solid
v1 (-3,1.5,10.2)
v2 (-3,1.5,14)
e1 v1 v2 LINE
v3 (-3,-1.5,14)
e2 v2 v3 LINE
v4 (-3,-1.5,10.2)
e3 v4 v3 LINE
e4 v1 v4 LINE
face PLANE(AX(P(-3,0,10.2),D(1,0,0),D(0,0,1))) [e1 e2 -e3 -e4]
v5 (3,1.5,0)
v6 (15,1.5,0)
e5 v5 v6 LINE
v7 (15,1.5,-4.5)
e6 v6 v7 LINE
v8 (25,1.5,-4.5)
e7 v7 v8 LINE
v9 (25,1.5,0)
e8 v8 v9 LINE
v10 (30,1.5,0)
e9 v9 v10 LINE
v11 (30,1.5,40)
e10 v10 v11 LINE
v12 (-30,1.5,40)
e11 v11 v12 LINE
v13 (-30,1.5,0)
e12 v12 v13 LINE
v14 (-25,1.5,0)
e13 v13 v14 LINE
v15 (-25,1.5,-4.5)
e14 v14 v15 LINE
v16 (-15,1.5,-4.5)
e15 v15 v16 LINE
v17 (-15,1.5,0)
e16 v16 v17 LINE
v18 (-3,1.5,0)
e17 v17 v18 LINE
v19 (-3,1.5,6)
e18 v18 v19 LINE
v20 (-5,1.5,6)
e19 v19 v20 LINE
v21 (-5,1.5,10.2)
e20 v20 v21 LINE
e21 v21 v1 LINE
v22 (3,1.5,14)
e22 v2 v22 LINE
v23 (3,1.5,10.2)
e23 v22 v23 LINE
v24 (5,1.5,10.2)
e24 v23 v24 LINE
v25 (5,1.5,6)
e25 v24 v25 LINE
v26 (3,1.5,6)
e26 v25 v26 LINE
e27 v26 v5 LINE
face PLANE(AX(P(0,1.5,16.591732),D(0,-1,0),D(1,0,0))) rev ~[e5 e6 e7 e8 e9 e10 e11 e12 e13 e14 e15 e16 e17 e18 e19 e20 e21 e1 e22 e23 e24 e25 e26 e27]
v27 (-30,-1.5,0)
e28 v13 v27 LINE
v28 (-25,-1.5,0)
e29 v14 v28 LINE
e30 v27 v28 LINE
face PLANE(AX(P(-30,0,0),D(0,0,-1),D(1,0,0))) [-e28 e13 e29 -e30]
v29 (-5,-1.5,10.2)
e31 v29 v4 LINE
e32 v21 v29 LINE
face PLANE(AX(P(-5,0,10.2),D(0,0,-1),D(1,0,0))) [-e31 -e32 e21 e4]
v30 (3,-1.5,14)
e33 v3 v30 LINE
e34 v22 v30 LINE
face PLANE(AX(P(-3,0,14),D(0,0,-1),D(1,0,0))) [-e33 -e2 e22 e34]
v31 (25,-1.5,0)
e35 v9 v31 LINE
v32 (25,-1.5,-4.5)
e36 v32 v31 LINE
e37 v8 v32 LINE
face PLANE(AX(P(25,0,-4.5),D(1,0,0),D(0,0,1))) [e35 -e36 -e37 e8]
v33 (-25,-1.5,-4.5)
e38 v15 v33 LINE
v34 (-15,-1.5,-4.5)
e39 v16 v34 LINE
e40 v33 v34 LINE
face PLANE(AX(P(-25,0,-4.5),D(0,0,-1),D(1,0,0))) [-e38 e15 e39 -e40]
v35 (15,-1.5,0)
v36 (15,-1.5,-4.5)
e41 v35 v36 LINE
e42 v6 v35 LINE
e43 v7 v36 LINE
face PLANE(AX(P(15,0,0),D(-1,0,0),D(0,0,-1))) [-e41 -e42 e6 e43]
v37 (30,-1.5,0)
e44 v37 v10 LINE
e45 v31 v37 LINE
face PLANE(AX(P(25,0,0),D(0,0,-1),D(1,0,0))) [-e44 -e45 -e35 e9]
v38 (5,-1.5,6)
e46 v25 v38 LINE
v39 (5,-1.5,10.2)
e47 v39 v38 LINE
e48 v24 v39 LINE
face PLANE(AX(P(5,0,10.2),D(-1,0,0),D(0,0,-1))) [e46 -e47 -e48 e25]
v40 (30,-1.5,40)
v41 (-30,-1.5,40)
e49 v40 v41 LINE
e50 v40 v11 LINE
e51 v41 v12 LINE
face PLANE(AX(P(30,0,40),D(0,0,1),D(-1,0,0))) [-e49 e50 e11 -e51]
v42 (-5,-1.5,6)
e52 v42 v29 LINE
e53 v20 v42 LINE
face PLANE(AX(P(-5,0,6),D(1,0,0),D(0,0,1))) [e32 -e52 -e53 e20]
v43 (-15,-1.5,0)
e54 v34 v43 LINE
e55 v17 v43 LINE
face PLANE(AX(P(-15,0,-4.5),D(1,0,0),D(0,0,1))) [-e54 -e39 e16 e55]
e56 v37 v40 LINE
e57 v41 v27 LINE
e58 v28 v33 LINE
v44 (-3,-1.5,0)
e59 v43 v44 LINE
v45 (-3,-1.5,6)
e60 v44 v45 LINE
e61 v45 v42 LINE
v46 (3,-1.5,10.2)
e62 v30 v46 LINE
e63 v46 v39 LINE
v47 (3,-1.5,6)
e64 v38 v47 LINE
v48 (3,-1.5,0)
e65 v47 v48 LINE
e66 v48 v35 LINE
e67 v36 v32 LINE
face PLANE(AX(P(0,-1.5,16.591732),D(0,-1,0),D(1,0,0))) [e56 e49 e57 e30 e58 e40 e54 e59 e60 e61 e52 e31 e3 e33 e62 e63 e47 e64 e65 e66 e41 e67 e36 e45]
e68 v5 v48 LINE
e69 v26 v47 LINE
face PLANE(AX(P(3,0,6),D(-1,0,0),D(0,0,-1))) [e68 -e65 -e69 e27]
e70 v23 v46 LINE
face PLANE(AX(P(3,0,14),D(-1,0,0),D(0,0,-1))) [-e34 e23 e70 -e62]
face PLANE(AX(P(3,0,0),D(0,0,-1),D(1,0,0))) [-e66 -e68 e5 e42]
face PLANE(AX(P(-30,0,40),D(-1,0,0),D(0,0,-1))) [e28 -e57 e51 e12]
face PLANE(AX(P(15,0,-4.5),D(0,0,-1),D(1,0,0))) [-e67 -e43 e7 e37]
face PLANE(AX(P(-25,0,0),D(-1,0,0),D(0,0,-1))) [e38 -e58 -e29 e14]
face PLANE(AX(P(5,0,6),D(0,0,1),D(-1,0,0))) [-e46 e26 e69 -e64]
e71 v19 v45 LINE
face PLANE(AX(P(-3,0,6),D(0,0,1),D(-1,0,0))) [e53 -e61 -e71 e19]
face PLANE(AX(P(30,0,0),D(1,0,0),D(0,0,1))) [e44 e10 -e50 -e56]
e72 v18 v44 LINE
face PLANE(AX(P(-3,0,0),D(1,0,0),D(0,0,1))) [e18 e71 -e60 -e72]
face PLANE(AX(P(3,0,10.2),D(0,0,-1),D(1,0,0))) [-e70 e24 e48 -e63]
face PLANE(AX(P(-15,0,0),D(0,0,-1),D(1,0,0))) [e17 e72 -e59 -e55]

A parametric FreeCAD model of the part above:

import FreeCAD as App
import Part
import Sketcher

V = App.Vector
Q = App.Units.Quantity


def add_polygon(sketch, points):
    """Adds a closed chain of lines whose ends are joined by coincident constraints."""
    first, n = sketch.GeometryCount, len(points)
    for a, b in zip(points, points[1:] + points[:1]):
        sketch.addGeometry(Part.LineSegment(App.Vector(*a, 0), App.Vector(*b, 0)), False)
    for i in range(n):
        sketch.addConstraint(Sketcher.Constraint("Coincident", first + i, 2, first + (i + 1) % n, 1))

doc = App.newDocument("Part")
body = doc.addObject("PartDesign::Body", "Body")

# Sketch on XZ plane
sketch1 = doc.addObject("Sketcher::SketchObject", "Sketch")
body.addObject(sketch1)
sketch1.AttachmentSupport = (doc.XZ_Plane, [""])
sketch1.MapMode = "FlatFace"
add_polygon(sketch1, [(-30, 40), (-30, 0), (-25, 0), (-25, -4.5), (-15, -4.5), (-15, 0), (-3, 0), (-3, 6), (-5, 6), (-5, 10.2), (-3, 10.2), (-3, 14), (3, 14), (3, 10.2), (5, 10.2), (5, 6), (3, 6), (3, 0), (15, 0), (15, -4.5), (25, -4.5), (25, 0), (30, 0), (30, 40)])  # lines 0-23
sketch1.addConstraint(Sketcher.Constraint("Vertical", 0))
sketch1.addConstraint(Sketcher.Constraint("Horizontal", 1))
sketch1.addConstraint(Sketcher.Constraint("Vertical", 2))
sketch1.addConstraint(Sketcher.Constraint("Horizontal", 3))
sketch1.addConstraint(Sketcher.Constraint("Vertical", 4))
sketch1.addConstraint(Sketcher.Constraint("Horizontal", 5))
sketch1.addConstraint(Sketcher.Constraint("Vertical", 6))
sketch1.addConstraint(Sketcher.Constraint("Horizontal", 7))
sketch1.addConstraint(Sketcher.Constraint("Vertical", 8))
sketch1.addConstraint(Sketcher.Constraint("Horizontal", 9))
sketch1.addConstraint(Sketcher.Constraint("Vertical", 10))
sketch1.addConstraint(Sketcher.Constraint("Horizontal", 11))
sketch1.addConstraint(Sketcher.Constraint("Vertical", 12))
sketch1.addConstraint(Sketcher.Constraint("Horizontal", 13))
sketch1.addConstraint(Sketcher.Constraint("Vertical", 14))
sketch1.addConstraint(Sketcher.Constraint("Horizontal", 15))
sketch1.addConstraint(Sketcher.Constraint("Vertical", 16))
sketch1.addConstraint(Sketcher.Constraint("Horizontal", 17))
sketch1.addConstraint(Sketcher.Constraint("Vertical", 18))
sketch1.addConstraint(Sketcher.Constraint("Horizontal", 19))
sketch1.addConstraint(Sketcher.Constraint("Vertical", 20))
sketch1.addConstraint(Sketcher.Constraint("Horizontal", 21))
sketch1.addConstraint(Sketcher.Constraint("Vertical", 22))
sketch1.addConstraint(Sketcher.Constraint("Horizontal", 23))
sketch1.addConstraint(Sketcher.Constraint("Symmetric", 5, 2, 16, 2, -1, 1))
sketch1.addConstraint(Sketcher.Constraint("Symmetric", 1, 2, 20, 2, -1, 1))
sketch1.addConstraint(Sketcher.Constraint("Symmetric", 9, 2, 12, 2, -2))
sketch1.addConstraint(Sketcher.Constraint("Symmetric", 7, 2, 14, 2, -2))
sketch1.addConstraint(Sketcher.Constraint("Symmetric", 4, 2, 17, 2, -2))
sketch1.addConstraint(Sketcher.Constraint("Symmetric", 0, 2, 21, 2, -2))
sketch1.addConstraint(Sketcher.Constraint("Horizontal", 3, 2, 18, 2))
sketch1.addConstraint(Sketcher.Constraint("Vertical", 6, 2, 9, 2))
sketch1.addConstraint(Sketcher.Constraint("Equal", 11, 6))
sketch1.addConstraint(Sketcher.Constraint("DistanceX", 1, 1, 1, 2, Q("5 mm")))
sketch1.addConstraint(Sketcher.Constraint("DistanceX", 3, 1, 3, 2, Q("10 mm")))
sketch1.addConstraint(Sketcher.Constraint("DistanceX", 5, 1, 5, 2, Q("12 mm")))
sketch1.addConstraint(Sketcher.Constraint("DistanceX", 7, 2, 7, 1, Q("2 mm")))
sketch1.addConstraint(Sketcher.Constraint("DistanceX", 11, 1, 11, 2, Q("6 mm")))
sketch1.addConstraint(Sketcher.Constraint("DistanceY", 0, 2, 0, 1, Q("40 mm")))
sketch1.addConstraint(Sketcher.Constraint("DistanceY", 2, 2, 2, 1, Q("4.5 mm")))
sketch1.addConstraint(Sketcher.Constraint("DistanceY", 8, 1, 8, 2, Q("4.2 mm")))
sketch1.addConstraint(Sketcher.Constraint("DistanceY", 10, 1, 10, 2, Q("3.8 mm")))
pad1 = doc.addObject("PartDesign::Pad", "Pad")
body.addObject(pad1)
pad1.Profile = sketch1
pad1.Length = 3
pad1.Midplane = True

doc.recompute()
